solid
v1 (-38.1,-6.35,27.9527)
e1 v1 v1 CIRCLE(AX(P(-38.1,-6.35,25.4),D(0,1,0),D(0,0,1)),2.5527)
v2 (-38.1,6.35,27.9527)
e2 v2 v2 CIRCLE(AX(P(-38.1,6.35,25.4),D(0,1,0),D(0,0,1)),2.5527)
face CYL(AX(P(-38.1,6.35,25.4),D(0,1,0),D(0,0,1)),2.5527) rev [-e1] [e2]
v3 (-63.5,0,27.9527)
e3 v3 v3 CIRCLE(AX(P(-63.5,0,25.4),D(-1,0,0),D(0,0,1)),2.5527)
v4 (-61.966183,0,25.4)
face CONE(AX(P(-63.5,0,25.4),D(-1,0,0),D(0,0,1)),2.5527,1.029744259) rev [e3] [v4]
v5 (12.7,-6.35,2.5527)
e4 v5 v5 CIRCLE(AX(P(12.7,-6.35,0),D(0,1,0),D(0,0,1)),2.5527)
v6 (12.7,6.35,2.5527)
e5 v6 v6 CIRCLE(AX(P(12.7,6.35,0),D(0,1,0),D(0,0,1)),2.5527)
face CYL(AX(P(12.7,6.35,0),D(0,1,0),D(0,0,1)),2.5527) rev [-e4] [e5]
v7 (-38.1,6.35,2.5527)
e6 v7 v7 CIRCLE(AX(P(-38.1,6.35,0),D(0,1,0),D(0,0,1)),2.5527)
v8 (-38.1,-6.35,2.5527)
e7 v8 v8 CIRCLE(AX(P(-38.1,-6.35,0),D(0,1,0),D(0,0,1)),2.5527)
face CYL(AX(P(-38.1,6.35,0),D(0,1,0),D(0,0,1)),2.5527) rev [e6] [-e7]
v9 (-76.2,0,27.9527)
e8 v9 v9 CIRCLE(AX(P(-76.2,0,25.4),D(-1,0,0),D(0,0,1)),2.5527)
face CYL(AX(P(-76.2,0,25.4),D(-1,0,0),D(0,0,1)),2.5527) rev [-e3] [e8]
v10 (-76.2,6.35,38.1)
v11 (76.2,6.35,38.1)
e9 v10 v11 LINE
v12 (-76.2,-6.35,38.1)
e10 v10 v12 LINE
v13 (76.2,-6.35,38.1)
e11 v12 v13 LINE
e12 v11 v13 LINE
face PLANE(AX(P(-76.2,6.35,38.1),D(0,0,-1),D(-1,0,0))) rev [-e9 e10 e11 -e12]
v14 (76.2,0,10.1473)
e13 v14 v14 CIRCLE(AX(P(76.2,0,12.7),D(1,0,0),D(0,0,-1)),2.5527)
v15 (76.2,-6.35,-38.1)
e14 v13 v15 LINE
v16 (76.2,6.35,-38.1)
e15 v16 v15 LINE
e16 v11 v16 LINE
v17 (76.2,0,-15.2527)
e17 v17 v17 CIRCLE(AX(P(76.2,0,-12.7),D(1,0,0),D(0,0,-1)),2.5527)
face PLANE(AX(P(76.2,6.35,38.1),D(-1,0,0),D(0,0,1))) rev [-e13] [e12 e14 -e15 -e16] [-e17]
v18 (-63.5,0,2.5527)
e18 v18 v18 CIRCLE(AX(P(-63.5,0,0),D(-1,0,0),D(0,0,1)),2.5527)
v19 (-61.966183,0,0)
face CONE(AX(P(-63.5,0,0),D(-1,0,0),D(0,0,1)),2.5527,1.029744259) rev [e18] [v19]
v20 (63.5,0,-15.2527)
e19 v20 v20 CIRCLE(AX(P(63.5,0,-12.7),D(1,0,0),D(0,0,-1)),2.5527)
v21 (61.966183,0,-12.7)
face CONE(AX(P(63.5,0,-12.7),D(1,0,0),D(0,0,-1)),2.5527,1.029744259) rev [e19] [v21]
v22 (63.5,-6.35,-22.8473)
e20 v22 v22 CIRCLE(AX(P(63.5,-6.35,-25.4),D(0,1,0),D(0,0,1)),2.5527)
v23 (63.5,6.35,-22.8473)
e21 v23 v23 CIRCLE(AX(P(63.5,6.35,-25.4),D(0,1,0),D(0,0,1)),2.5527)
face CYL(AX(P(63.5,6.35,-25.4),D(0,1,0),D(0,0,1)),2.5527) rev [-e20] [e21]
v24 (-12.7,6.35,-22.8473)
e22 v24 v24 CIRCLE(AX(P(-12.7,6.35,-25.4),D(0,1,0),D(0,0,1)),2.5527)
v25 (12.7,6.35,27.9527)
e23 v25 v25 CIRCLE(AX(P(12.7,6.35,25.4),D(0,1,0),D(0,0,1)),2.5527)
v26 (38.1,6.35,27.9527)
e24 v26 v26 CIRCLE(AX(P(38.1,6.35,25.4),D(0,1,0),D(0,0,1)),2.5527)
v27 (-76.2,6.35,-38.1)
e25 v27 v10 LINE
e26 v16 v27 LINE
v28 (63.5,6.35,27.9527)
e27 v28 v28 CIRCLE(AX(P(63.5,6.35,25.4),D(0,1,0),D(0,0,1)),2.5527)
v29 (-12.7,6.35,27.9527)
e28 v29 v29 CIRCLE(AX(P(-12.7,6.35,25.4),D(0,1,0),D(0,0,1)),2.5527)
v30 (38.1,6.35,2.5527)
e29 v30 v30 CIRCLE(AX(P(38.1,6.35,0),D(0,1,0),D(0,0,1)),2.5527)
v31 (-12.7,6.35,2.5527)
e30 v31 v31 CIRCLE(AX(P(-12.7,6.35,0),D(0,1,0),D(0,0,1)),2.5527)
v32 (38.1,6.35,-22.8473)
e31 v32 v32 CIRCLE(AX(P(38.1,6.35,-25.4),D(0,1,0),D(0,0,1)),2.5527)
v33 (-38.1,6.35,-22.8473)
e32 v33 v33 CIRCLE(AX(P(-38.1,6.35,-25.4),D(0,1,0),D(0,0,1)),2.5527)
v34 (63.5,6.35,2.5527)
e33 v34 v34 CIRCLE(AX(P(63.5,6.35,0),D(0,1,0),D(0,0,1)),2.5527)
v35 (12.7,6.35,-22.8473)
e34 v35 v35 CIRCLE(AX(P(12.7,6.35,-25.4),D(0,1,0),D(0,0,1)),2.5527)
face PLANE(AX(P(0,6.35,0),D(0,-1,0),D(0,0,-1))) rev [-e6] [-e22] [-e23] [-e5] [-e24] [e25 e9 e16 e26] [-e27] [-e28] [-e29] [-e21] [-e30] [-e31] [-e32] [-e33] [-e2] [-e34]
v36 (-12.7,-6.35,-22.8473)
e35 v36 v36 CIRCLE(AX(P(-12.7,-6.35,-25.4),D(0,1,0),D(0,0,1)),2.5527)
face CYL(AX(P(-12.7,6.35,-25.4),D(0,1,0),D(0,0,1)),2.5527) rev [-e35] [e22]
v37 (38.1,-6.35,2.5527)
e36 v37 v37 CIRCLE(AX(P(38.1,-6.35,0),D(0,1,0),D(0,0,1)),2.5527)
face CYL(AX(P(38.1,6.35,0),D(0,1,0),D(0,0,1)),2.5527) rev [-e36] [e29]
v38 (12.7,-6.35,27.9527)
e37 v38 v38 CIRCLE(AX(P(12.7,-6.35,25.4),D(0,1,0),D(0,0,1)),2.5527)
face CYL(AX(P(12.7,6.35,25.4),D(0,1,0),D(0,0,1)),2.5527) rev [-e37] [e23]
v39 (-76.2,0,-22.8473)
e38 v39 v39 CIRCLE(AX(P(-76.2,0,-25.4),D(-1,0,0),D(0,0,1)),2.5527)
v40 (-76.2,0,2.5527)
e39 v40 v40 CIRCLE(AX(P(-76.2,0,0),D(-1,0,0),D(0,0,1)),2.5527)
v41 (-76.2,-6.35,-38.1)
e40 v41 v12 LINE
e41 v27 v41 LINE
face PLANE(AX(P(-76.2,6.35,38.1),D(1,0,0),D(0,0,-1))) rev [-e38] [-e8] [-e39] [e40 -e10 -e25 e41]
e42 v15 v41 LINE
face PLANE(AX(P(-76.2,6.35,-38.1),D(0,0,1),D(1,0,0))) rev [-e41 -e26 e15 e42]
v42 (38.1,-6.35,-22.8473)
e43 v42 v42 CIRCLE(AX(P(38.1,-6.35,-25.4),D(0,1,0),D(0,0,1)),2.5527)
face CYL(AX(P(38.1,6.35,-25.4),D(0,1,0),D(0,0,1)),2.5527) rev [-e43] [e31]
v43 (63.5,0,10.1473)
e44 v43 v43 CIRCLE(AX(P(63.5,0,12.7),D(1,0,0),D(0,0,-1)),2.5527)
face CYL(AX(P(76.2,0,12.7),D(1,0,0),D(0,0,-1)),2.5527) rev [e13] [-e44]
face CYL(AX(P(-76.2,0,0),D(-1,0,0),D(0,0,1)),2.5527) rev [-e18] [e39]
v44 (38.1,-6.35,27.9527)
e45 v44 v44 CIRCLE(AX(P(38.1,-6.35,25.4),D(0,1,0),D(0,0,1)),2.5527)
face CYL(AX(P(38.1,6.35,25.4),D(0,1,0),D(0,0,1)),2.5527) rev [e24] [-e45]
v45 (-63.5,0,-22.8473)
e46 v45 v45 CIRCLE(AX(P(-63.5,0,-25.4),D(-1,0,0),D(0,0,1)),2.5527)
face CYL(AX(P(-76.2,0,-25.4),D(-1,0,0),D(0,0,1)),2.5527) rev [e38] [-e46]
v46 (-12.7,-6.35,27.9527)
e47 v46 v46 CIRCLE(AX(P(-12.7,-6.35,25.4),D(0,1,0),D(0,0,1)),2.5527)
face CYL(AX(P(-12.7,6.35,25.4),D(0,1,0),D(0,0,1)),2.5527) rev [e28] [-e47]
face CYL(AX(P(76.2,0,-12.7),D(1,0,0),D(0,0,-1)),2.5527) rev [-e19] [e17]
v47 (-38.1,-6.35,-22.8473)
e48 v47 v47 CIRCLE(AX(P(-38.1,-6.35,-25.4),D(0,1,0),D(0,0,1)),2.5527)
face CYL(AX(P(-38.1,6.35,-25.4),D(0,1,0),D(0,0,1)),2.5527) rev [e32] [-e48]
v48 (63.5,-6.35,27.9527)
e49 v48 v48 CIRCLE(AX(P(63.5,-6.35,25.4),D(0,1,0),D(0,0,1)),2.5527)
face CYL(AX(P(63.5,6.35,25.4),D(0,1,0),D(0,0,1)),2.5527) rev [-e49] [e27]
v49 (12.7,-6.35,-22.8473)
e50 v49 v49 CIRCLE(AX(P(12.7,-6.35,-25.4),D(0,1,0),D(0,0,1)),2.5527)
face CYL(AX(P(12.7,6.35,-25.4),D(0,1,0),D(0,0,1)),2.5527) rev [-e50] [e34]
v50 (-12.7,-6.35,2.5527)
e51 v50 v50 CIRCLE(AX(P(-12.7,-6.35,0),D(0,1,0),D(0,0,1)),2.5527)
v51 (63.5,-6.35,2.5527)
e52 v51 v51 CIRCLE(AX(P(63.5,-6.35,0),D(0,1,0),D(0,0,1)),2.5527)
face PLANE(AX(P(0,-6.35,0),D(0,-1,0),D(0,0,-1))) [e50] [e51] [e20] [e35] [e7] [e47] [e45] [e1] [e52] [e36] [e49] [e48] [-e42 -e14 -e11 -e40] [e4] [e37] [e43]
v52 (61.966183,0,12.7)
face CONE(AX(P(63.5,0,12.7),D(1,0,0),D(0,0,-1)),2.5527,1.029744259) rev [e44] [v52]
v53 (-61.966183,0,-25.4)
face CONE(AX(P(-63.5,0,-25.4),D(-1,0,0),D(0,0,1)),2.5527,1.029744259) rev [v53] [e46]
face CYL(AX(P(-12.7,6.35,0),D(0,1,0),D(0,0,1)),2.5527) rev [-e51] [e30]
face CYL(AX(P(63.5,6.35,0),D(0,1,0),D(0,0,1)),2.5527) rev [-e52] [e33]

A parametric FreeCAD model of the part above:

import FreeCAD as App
import Part
import Sketcher
from FreeCAD import Vector
Q = App.Units.Quantity


def add_polygon(sketch, points):
    """Adds a closed chain of lines whose ends are joined by coincident constraints."""
    first, n = sketch.GeometryCount, len(points)
    for a, b in zip(points, points[1:] + points[:1]):
        sketch.addGeometry(Part.LineSegment(App.Vector(*a, 0), App.Vector(*b, 0)), False)
    for i in range(n):
        sketch.addConstraint(Sketcher.Constraint("Coincident", first + i, 2, first + (i + 1) % n, 1))

doc = App.newDocument("Part")
body = doc.addObject("PartDesign::Body", "Body")

# Sketch on XZ plane
sketch1 = doc.addObject("Sketcher::SketchObject", "Sketch")
body.addObject(sketch1)
sketch1.AttachmentSupport = (doc.XZ_Plane, [""])
sketch1.MapMode = "FlatFace"
add_polygon(sketch1, [(-76, -38), (-76, 38), (76, 38), (76, -38)])  # lines 0-3
sketch1.addConstraint([
    Sketcher.Constraint("Vertical", 0),
    Sketcher.Constraint("Horizontal", 1),
    Sketcher.Constraint("Vertical", 2),
    Sketcher.Constraint("Horizontal", 3),
    Sketcher.Constraint("Symmetric", 0, 2, 2, 2, -1, 1),
    Sketcher.Constraint("DistanceX", 1, 1, 1, 2, Q("6 in")),
    Sketcher.Constraint("DistanceY", 0, 1, 0, 2, Q("3 in")),
])
pad1 = doc.addObject("PartDesign::Pad", "Pad")
body.addObject(pad1)
pad1.Profile = sketch1
pad1.Length = Q("0.5 in")
pad1.Midplane = True

# Sketch on XZ plane
sketch2 = doc.addObject("Sketcher::SketchObject", "Sketch001")
body.addObject(sketch2)
sketch2.AttachmentSupport = (doc.XZ_Plane, [""])
sketch2.MapMode = "FlatFace"
sketch2.AttachmentOffset = App.Placement(Vector(0, 0, -0.25 * 25.4), App.Rotation())
sketch2.addGeometry([
    Part.Circle(Vector(63.5, -25.4, 0), Vector(0, 0, 1), 2.6),  # 0
    Part.Circle(Vector(38.1, -25.4, 0), Vector(0, 0, 1), 2.6),  # 1
    Part.Circle(Vector(12.7, -25.4, 0), Vector(0, 0, 1), 2.6),  # 2
    Part.Circle(Vector(38.1, 0, 0), Vector(0, 0, 1), 2.6),  # 3
    Part.Circle(Vector(12.7, 0, 0), Vector(0, 0, 1), 2.6),  # 4
    Part.Circle(Vector(38.1, 25.4, 0), Vector(0, 0, 1), 2.6),  # 5
    Part.Circle(Vector(12.7, 25.4, 0), Vector(0, 0, 1), 2.6),  # 6
    Part.Circle(Vector(63.5, 0, 0), Vector(0, 0, 1), 2.6),  # 7
    Part.Circle(Vector(63.5, 25.4, 0), Vector(0, 0, 1), 2.6),  # 8
    Part.Circle(Vector(-12.7, -25.4, 0), Vector(0, 0, 1), 2.6),  # 9
    Part.Circle(Vector(-38.1, -25.4, 0), Vector(0, 0, 1), 2.6),  # 10
    Part.Circle(Vector(-12.7, 0, 0), Vector(0, 0, 1), 2.6),  # 11
    Part.Circle(Vector(-38.1, 0, 0), Vector(0, 0, 1), 2.6),  # 12
    Part.Circle(Vector(-12.7, 25.4, 0), Vector(0, 0, 1), 2.6),  # 13
    Part.Circle(Vector(-38.1, 25.4, 0), Vector(0, 0, 1), 2.6),  # 14
], False)
sketch2.addConstraint([
    Sketcher.Constraint("Equal", 0, 1),
    Sketcher.Constraint("Equal", 1, 2),
    Sketcher.Constraint("Equal", 2, 3),
    Sketcher.Constraint("Equal", 3, 4),
    Sketcher.Constraint("Equal", 4, 5),
    Sketcher.Constraint("Equal", 5, 6),
    Sketcher.Constraint("Equal", 6, 7),
    Sketcher.Constraint("Equal", 7, 8),
    Sketcher.Constraint("Equal", 8, 9),
    Sketcher.Constraint("Equal", 9, 10),
    Sketcher.Constraint("Equal", 10, 11),
    Sketcher.Constraint("Equal", 11, 12),
    Sketcher.Constraint("Equal", 12, 13),
    Sketcher.Constraint("Equal", 13, 14),
    Sketcher.Constraint("Symmetric", 6, 3, 9, 3, -1, 1),
    Sketcher.Constraint("Symmetric", 5, 3, 10, 3, -1, 1),
    Sketcher.Constraint("Symmetric", 4, 3, 11, 3, -1, 1),
    Sketcher.Constraint("Symmetric", 3, 3, 12, 3, -1, 1),
    Sketcher.Constraint("Symmetric", 2, 3, 13, 3, -1, 1),
    Sketcher.Constraint("Symmetric", 1, 3, 14, 3, -1, 1),
    Sketcher.Constraint("Symmetric", 2, 3, 9, 3, -2),
    Sketcher.Constraint("Symmetric", 1, 3, 10, 3, -2),
    Sketcher.Constraint("Symmetric", 0, 3, 8, 3, -1),
    Sketcher.Constraint("PointOnObject", 3, 3, -1),
    Sketcher.Constraint("PointOnObject", 4, 3, -1),
    Sketcher.Constraint("PointOnObject", 7, 3, -1),
    Sketcher.Constraint("Horizontal", 0, 3, 1, 3),
    Sketcher.Constraint("Horizontal", 1, 3, 2, 3),
    Sketcher.Constraint("Vertical", 1, 3, 3, 3),
    Sketcher.Constraint("Vertical", 2, 3, 4, 3),
    Sketcher.Constraint("Vertical", 0, 3, 7, 3),
    Sketcher.Constraint("Diameter", 0, Q("0.201 in")),
    Sketcher.Constraint("DistanceY", 0, 3, -1, 1, Q("1 in")),
    Sketcher.Constraint("DistanceX", 1, 3, 0, 3, Q("1 in")),
    Sketcher.Constraint("DistanceX", 2, 3, 1, 3, Q("1 in")),
    Sketcher.Constraint("DistanceX", 9, 3, 2, 3, Q("1 in")),
])
doc.recompute()
hole = doc.addObject("PartDesign::Hole", "Hole")
body.addObject(hole)
hole.Profile = sketch2
hole.ThreadType = "None"
hole.Diameter = Q("0.201 in")
hole.DepthType = "ThroughAll"
hole.Reversed = True

# Sketch on YZ plane
sketch3 = doc.addObject("Sketcher::SketchObject", "Sketch002")
body.addObject(sketch3)
sketch3.AttachmentSupport = (doc.YZ_Plane, [""])
sketch3.MapMode = "FlatFace"
sketch3.AttachmentOffset = App.Placement(Vector(0, 0, -3 * 25.4), App.Rotation())
sketch3.addGeometry([
    Part.Circle(Vector(0, -25.4, 0), Vector(0, 0, 1), 2.6),
    Part.Circle(Vector(0, 0, 0), Vector(0, 0, 1), 2.6),
    Part.Circle(Vector(0, 25.4, 0), Vector(0, 0, 1), 2.6),
], False)
sketch3.addConstraint([
    Sketcher.Constraint("Coincident", 1, 3, -1, 1),
    Sketcher.Constraint("Equal", 0, 1),
    Sketcher.Constraint("Equal", 1, 2),
    Sketcher.Constraint("Symmetric", 0, 3, 2, 3, -1, 1),
    Sketcher.Constraint("PointOnObject", 0, 3, -2),
    Sketcher.Constraint("Diameter", 0, Q("0.201 in")),
    Sketcher.Constraint("DistanceY", 0, 3, -1, 1, Q("1 in")),
])
doc.recompute()
hole2 = doc.addObject("PartDesign::Hole", "Hole001")
body.addObject(hole2)
hole2.Profile = sketch3
hole2.ThreadType = "None"
hole2.Diameter = Q("0.201 in")
hole2.DepthType = "Dimension"
hole2.Depth = Q("0.5 in")
hole2.DrillPoint = "Angled"
hole2.DrillPointAngle = 118
hole2.Reversed = True

# Sketch on YZ plane
sketch4 = doc.addObject("Sketcher::SketchObject", "Sketch003")
body.addObject(sketch4)
sketch4.AttachmentSupport = (doc.YZ_Plane, [""])
sketch4.MapMode = "FlatFace"
sketch4.AttachmentOffset = App.Placement(Vector(0, 0, 3 * 25.4), App.Rotation())
sketch4.addGeometry([
    Part.Circle(Vector(0, -12.7, 0), Vector(0, 0, 1), 2.6),
    Part.Circle(Vector(0, 12.7, 0), Vector(0, 0, 1), 2.6),
], False)
sketch4.addConstraint([
    Sketcher.Constraint("Equal", 0, 1),
    Sketcher.Constraint("Symmetric", 0, 3, 1, 3, -1, 1),
    Sketcher.Constraint("PointOnObject", 0, 3, -2),
    Sketcher.Constraint("Diameter", 0, Q("0.201 in")),
    Sketcher.Constraint("DistanceY", 0, 3, 1, 3, Q("1 in")),
])
doc.recompute()
hole3 = doc.addObject("PartDesign::Hole", "Hole002")
body.addObject(hole3)
hole3.Profile = sketch4
hole3.ThreadType = "None"
hole3.Diameter = Q("0.201 in")
hole3.DepthType = "Dimension"
hole3.Depth = Q("0.5 in")
hole3.DrillPoint = "Angled"
hole3.DrillPointAngle = 118

doc.recompute()
